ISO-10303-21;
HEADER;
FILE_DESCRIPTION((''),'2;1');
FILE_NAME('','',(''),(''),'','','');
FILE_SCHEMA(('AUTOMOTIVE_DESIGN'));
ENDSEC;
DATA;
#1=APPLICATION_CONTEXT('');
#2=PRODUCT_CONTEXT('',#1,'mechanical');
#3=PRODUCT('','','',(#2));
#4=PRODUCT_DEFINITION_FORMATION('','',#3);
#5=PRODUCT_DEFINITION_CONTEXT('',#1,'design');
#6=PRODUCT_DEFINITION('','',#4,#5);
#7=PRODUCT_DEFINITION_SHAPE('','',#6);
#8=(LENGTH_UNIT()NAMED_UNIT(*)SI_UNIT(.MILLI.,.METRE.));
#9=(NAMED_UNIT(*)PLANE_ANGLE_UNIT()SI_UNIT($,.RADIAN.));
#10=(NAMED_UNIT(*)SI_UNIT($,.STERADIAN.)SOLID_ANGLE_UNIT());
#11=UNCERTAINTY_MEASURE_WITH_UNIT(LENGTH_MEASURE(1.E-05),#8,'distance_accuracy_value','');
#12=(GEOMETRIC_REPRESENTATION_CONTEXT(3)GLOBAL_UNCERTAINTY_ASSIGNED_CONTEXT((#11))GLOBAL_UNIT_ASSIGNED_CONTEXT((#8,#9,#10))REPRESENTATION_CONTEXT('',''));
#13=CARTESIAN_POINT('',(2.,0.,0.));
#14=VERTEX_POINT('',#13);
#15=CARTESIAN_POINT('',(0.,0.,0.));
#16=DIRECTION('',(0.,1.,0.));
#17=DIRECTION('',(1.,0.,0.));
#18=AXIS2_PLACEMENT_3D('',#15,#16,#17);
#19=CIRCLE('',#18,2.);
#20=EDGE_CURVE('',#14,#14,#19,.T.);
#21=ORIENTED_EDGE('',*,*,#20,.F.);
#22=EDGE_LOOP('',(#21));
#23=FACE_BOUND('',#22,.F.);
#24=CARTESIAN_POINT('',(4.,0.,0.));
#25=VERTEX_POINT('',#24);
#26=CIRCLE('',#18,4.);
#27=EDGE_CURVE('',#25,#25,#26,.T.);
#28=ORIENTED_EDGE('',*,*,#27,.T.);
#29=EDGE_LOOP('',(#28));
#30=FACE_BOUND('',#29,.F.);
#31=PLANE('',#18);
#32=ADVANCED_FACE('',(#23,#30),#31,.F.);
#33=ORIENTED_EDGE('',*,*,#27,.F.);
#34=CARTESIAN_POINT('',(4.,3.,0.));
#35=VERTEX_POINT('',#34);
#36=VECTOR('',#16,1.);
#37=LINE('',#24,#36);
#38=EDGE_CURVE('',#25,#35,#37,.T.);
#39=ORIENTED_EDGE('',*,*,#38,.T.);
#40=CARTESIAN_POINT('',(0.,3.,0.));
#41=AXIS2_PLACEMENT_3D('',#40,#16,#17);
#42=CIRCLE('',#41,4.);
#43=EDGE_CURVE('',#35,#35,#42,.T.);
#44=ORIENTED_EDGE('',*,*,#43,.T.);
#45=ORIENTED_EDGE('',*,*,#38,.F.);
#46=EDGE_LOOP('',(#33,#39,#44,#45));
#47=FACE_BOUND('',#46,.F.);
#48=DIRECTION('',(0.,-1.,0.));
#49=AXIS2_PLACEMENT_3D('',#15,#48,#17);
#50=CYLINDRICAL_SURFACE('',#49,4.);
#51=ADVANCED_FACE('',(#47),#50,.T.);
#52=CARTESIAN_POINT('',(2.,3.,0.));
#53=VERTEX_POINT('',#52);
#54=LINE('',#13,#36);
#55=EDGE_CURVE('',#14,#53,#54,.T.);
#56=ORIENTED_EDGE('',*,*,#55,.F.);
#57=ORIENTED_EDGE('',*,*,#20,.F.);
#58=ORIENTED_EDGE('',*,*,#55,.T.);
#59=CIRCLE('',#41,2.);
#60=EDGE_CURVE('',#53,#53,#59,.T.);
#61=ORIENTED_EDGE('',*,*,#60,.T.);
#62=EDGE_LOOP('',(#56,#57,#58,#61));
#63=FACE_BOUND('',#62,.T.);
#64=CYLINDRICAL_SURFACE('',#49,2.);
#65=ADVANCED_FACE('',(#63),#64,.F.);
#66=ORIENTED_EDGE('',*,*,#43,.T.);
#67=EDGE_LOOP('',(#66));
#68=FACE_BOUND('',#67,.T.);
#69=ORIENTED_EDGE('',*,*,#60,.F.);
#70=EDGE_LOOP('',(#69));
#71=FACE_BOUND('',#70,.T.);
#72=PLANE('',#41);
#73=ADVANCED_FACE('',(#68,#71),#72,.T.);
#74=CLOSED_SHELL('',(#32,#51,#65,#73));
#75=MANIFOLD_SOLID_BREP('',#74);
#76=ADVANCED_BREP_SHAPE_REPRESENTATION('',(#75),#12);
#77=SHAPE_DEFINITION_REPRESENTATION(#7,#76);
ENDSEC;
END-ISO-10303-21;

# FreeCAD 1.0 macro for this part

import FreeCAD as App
import Part
import Sketcher
from FreeCAD import Vector

doc = App.newDocument("Part")
body = doc.addObject("PartDesign::Body", "Body")

# Sketch on XZ plane
sketch1 = body.newObject("Sketcher::SketchObject", "Sketch")
sketch1.AttachmentSupport = (doc.getObject("XZ_Plane"), [""])
sketch1.MapMode = "FlatFace"
sketch1.addGeometry(Part.Circle(Vector(0, 0, 0), Vector(0, 0, 1), 4), False)
sketch1.addGeometry(Part.Circle(Vector(0, 0, 0), Vector(0, 0, 1), 2), False)
sketch1.addConstraint(Sketcher.Constraint("Coincident", 0, 3, -1, 1))
sketch1.addConstraint(Sketcher.Constraint("Coincident", 1, 3, -1, 1))
sketch1.addConstraint(Sketcher.Constraint("Diameter", 0, 8.0))
sketch1.addConstraint(Sketcher.Constraint("Diameter", 1, 4.0))
pad1 = body.newObject("PartDesign::Pad", "Pad")
pad1.Profile = sketch1
pad1.Length = 3
pad1.Reversed = True

doc.recompute()
